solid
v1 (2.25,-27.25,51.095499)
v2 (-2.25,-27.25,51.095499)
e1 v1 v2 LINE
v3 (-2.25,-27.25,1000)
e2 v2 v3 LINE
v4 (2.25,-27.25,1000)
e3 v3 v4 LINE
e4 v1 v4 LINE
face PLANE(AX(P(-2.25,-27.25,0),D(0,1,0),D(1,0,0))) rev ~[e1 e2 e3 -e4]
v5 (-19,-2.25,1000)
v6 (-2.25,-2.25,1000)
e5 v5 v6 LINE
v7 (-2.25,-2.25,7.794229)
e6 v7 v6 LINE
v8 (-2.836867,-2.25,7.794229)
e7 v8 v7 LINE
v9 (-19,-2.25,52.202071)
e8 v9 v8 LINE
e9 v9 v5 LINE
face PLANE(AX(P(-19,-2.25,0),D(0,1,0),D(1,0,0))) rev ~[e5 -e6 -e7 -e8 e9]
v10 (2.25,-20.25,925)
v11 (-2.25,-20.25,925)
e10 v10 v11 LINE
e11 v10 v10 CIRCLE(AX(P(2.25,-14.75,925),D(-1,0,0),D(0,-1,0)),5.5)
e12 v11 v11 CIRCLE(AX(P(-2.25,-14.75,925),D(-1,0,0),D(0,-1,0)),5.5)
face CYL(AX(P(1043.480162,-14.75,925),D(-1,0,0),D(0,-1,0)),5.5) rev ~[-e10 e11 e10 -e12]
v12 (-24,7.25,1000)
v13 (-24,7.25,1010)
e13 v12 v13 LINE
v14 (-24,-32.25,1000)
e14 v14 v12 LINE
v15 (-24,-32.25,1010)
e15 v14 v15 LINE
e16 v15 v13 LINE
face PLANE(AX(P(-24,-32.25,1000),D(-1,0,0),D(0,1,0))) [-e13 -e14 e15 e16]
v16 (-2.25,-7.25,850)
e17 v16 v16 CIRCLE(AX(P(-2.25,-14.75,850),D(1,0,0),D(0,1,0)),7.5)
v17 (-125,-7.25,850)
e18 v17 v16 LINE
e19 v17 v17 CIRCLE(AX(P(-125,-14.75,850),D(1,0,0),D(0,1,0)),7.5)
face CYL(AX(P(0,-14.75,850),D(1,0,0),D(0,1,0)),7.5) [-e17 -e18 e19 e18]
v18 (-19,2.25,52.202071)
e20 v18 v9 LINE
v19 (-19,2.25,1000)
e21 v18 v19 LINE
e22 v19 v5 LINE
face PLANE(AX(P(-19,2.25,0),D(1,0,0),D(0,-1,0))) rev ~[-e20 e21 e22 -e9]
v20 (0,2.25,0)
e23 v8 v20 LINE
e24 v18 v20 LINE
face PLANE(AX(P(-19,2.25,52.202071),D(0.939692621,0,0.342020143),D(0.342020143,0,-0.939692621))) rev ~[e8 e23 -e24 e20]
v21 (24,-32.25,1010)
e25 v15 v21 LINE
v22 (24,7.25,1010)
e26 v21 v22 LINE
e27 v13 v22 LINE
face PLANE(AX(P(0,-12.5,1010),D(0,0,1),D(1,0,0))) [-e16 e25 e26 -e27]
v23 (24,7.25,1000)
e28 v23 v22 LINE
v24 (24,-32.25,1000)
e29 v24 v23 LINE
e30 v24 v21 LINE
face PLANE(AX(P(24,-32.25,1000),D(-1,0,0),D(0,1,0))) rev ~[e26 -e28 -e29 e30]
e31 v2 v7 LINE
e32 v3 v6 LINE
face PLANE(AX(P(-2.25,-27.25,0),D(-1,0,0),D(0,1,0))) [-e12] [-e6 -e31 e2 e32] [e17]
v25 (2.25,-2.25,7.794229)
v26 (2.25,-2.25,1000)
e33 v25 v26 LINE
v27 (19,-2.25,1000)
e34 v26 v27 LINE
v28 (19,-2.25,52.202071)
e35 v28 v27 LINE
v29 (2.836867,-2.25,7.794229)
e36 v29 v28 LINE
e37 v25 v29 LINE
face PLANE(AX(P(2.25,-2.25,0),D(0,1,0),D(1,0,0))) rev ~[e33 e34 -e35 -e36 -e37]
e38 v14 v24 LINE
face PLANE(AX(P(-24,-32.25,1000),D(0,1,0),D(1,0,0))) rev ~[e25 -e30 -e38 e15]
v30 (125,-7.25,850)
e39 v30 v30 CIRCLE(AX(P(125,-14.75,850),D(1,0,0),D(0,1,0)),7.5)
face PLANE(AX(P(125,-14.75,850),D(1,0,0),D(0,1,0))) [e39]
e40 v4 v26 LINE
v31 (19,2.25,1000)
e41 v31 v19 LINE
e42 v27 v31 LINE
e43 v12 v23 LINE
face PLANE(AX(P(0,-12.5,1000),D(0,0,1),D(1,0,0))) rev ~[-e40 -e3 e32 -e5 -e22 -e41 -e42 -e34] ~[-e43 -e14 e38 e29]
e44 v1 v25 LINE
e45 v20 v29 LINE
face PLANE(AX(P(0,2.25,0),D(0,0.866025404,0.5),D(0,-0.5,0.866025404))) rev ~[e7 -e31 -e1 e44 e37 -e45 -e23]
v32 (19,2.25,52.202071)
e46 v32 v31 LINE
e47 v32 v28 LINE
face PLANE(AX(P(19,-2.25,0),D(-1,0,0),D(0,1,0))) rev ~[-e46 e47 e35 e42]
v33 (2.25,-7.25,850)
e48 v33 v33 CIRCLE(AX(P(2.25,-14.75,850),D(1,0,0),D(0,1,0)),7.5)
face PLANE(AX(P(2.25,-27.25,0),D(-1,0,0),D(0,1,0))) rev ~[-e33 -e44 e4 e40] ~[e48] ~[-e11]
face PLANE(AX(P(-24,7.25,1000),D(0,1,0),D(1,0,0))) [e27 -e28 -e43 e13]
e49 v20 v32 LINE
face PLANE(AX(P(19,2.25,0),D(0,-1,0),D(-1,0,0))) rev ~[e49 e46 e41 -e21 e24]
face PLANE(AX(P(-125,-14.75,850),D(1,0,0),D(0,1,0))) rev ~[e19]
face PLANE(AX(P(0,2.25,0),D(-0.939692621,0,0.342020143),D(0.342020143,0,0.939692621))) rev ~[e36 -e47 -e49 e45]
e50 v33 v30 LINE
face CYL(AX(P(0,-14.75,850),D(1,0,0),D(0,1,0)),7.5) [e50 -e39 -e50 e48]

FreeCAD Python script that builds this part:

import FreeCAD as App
import Part
import Sketcher
Q = App.Units.Quantity


def add_polygon(sketch, points):
    """Adds a closed chain of lines whose ends are joined by coincident constraints."""
    first, n = sketch.GeometryCount, len(points)
    for a, b in zip(points, points[1:] + points[:1]):
        sketch.addGeometry(Part.LineSegment(App.Vector(*a, 0), App.Vector(*b, 0)), False)
    for i in range(n):
        sketch.addConstraint(Sketcher.Constraint("Coincident", first + i, 2, first + (i + 1) % n, 1))

doc = App.newDocument("Part")
body = doc.addObject("PartDesign::Body", "Body")

# Sketch on XY plane
sketch1 = body.newObject("Sketcher::SketchObject", "Sketch")
sketch1.AttachmentSupport = (doc.getObject("XY_Plane"), [""])
sketch1.MapMode = "FlatFace"
add_polygon(sketch1, [(19, -2.2), (19, 2.2), (-19, 2.2), (-19, -2.2), (-2.2, -2.2), (-2.2, -27.2), (2.2, -27.2), (2.2, -2.2)])  # lines 0-7
sketch1.addConstraint([
    Sketcher.Constraint("Vertical", 0),
    Sketcher.Constraint("Horizontal", 1),
    Sketcher.Constraint("Vertical", 2),
    Sketcher.Constraint("Horizontal", 3),
    Sketcher.Constraint("Vertical", 4),
    Sketcher.Constraint("Horizontal", 5),
    Sketcher.Constraint("Vertical", 6),
    Sketcher.Constraint("Horizontal", 7),
    Sketcher.Constraint("Symmetric", 0, 2, 2, 2, -1, 1),
    Sketcher.Constraint("Symmetric", 3, 2, 6, 2, -2),
    Sketcher.Constraint("Equal", 5, 0),
    Sketcher.Constraint("DistanceX", 1, 2, 1, 1, Q("38 mm")),
    Sketcher.Constraint("DistanceY", 4, 2, 4, 1, Q("25 mm")),
    Sketcher.Constraint("DistanceX", 5, 1, 5, 2, Q("4.5 mm")),
])
pad1 = body.newObject("PartDesign::Pad", "Pad")
pad1.Profile = sketch1
pad1.Length = 1000

# Sketch on YZ plane
sketch2 = body.newObject("Sketcher::SketchObject", "Sketch001")
sketch2.AttachmentSupport = (doc.getObject("YZ_Plane"), [""])
sketch2.MapMode = "FlatFace"
sketch2.addGeometry(Part.Circle(App.Vector(-15, 850, 0), App.Vector(0, 0, 1), 8), False)
sketch2.addConstraint([
    Sketcher.Constraint("Diameter", 0, Q("15 mm")),
    Sketcher.Constraint("DistanceY", -1, 1, 0, 3, Q("850 mm")),
    Sketcher.Constraint("DistanceX", 0, 3, -1, 1, Q("14.75 mm")),
])
pad2 = body.newObject("PartDesign::Pad", "Pad001")
pad2.Profile = sketch2
pad2.Length = 250
pad2.Midplane = True

# Sketch on XY plane
sketch3 = body.newObject("Sketcher::SketchObject", "Sketch002")
sketch3.AttachmentSupport = (doc.getObject("XY_Plane"), [""])
sketch3.MapMode = "FlatFace"
sketch3.AttachmentOffset = App.Placement(App.Vector(0, 0, 1000), App.Rotation())
add_polygon(sketch3, [(-24, 7), (-24, -32), (24, -32), (24, 7)])  # lines 0-3
sketch3.addConstraint([
    Sketcher.Constraint("Vertical", 0),
    Sketcher.Constraint("Horizontal", 1),
    Sketcher.Constraint("Vertical", 2),
    Sketcher.Constraint("Horizontal", 3),
    Sketcher.Constraint("DistanceX", 1, 1, 1, 2, Q("48 mm")),
    Sketcher.Constraint("DistanceY", 0, 2, 0, 1, Q("39.5 mm")),
    Sketcher.Constraint("DistanceX", 0, 2, -1, 1, Q("24 mm")),
    Sketcher.Constraint("DistanceY", 0, 2, -1, 1, Q("32.25 mm")),
])
pad3 = body.newObject("PartDesign::Pad", "Pad002")
pad3.Profile = sketch3
pad3.Length = 10

# Sketch on YZ plane
sketch4 = body.newObject("Sketcher::SketchObject", "Sketch003")
sketch4.AttachmentSupport = (doc.getObject("YZ_Plane"), [""])
sketch4.MapMode = "FlatFace"
add_polygon(sketch4, [(-27, 0), (2, 0), (-27, 51)])  # lines 0-2
sketch4.addConstraint([
    Sketcher.Constraint("Horizontal", 0),
    Sketcher.Constraint("Vertical", 2),
    Sketcher.Constraint("PointOnObject", 0, 2, -1),
    Sketcher.Constraint("Angle", 1, Q("120 deg")),
    Sketcher.Constraint("Distance", 1, Q("59 mm")),
    Sketcher.Constraint("DistanceX", -1, 1, 0, 2, Q("2.25 mm")),
])
pocket1 = body.newObject("PartDesign::Pocket", "Pocket")
pocket1.Profile = sketch4
pocket1.Length = 100
pocket1.Midplane = True

# Sketch on XZ plane
sketch5 = body.newObject("Sketcher::SketchObject", "Sketch004")
sketch5.AttachmentSupport = (doc.getObject("XZ_Plane"), [""])
sketch5.MapMode = "FlatFace"
sketch5.AttachmentOffset = App.Placement(App.Vector(0, 0, -2.25), App.Rotation())
add_polygon(sketch5, [(19, 0), (0, 0), (19, 52)])  # lines 0-2
add_polygon(sketch5, [(-19, 52), (0, 0), (-19, 0)])  # lines 3-5
sketch5.addConstraint([
    Sketcher.Constraint("Horizontal", 0),
    Sketcher.Constraint("Vertical", 2),
    Sketcher.Constraint("Horizontal", 4),
    Sketcher.Constraint("Vertical", 5),
    Sketcher.Constraint("Coincident", 0, 2, -1, 1),
    Sketcher.Constraint("Coincident", 3, 2, -1, 1),
    Sketcher.Constraint("Symmetric", 1, 2, 5, 2, -2),
    Sketcher.Constraint("DistanceX", 0, 2, 0, 1, Q("19 mm")),
    Sketcher.Constraint("Angle", 1, Q("70 deg")),
])
pocket2 = body.newObject("PartDesign::Pocket", "Pocket001")
pocket2.Profile = sketch5
pocket2.Type = "ThroughAll"
pocket2.Reversed = True

# Sketch on YZ plane
sketch6 = body.newObject("Sketcher::SketchObject", "Sketch005")
sketch6.AttachmentSupport = (doc.getObject("YZ_Plane"), [""])
sketch6.MapMode = "FlatFace"
sketch6.AttachmentOffset = App.Placement(App.Vector(0, 0, 2.25), App.Rotation())
sketch6.addGeometry(Part.Circle(App.Vector(-15, 925, 0), App.Vector(0, 0, 1), 6), False)
sketch6.addConstraint([
    Sketcher.Constraint("Diameter", 0, Q("11 mm")),
    Sketcher.Constraint("DistanceY", -1, 1, 0, 3, Q("925 mm")),
    Sketcher.Constraint("DistanceX", 0, 3, -1, 1, Q("14.75 mm")),
])
doc.recompute()
hole = body.newObject("PartDesign::Hole", "Hole")
hole.Profile = sketch6
hole.ThreadType = "None"
hole.Diameter = 11
hole.DepthType = "ThroughAll"

doc.recompute()
